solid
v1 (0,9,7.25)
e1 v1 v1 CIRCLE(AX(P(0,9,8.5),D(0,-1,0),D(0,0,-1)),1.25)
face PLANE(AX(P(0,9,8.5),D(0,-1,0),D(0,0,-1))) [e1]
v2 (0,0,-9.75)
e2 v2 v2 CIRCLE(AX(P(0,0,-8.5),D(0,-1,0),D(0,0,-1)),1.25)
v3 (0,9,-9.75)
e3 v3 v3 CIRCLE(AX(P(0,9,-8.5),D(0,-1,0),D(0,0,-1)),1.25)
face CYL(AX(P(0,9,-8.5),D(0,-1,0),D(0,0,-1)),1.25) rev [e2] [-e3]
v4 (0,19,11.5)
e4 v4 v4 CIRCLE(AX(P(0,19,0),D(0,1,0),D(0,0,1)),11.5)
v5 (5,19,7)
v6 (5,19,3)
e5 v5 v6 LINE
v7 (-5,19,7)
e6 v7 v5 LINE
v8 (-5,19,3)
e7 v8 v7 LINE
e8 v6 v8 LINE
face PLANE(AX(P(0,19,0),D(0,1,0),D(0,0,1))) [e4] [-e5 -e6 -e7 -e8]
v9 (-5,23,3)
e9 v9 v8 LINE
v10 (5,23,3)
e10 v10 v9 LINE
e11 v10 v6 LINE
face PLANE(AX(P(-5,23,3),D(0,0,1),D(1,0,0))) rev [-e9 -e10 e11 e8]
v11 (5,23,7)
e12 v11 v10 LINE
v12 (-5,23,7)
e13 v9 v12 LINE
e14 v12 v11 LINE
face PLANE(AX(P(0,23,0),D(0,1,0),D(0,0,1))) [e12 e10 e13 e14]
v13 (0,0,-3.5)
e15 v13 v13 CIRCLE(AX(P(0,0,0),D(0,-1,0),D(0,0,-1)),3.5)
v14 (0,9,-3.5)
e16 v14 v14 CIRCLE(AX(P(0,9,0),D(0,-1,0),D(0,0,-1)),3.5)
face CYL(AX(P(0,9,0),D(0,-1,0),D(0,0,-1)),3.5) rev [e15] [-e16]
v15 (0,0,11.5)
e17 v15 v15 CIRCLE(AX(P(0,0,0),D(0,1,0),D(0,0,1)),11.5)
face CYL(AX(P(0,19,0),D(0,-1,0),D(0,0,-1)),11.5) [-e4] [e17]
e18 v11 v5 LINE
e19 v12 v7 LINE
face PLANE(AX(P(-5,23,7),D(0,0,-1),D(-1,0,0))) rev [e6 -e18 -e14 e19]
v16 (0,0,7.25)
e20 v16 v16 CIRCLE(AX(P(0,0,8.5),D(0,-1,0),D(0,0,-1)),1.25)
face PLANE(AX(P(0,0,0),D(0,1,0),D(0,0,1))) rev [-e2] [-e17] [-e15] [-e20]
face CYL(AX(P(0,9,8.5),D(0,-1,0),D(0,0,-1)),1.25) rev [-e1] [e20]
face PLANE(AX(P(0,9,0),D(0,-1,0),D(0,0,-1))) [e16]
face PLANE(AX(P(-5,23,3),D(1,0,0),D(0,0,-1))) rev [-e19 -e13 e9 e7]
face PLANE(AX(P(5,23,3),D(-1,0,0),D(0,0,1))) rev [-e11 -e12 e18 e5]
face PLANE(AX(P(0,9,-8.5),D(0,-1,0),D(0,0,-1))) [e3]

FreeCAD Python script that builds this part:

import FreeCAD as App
import Part
import Sketcher
from FreeCAD import Vector
Q = App.Units.Quantity


def add_polygon(sketch, points):
    """Adds a closed chain of lines whose ends are joined by coincident constraints."""
    first, n = sketch.GeometryCount, len(points)
    for a, b in zip(points, points[1:] + points[:1]):
        sketch.addGeometry(Part.LineSegment(App.Vector(*a, 0), App.Vector(*b, 0)), False)
    for i in range(n):
        sketch.addConstraint(Sketcher.Constraint("Coincident", first + i, 2, first + (i + 1) % n, 1))

doc = App.newDocument("Part")
body = doc.addObject("PartDesign::Body", "Body")

# Sketch on XZ plane
sketch1 = body.newObject("Sketcher::SketchObject", "Sketch")
sketch1.AttachmentSupport = (doc.getObject("XZ_Plane"), [""])
sketch1.MapMode = "FlatFace"
sketch1.addGeometry(Part.Circle(Vector(0, 0, 0), Vector(0, 0, 1), 11.5), False)
sketch1.addConstraint(Sketcher.Constraint("Coincident", 0, 3, -1, 1))
sketch1.addConstraint(Sketcher.Constraint("Diameter", 0, Q("23 mm")))
pad1 = body.newObject("PartDesign::Pad", "Pad")
pad1.Profile = sketch1
pad1.Length = 19
pad1.Reversed = True

# Sketch on XZ plane
sketch2 = body.newObject("Sketcher::SketchObject", "Sketch001")
sketch2.AttachmentSupport = (doc.getObject("XZ_Plane"), [""])
sketch2.MapMode = "FlatFace"
sketch2.AttachmentOffset = App.Placement(Vector(0, 0, -19), App.Rotation())
add_polygon(sketch2, [(-5, 3), (-5, 7), (5, 7), (5, 3)])  # lines 0-3
sketch2.addConstraint(Sketcher.Constraint("Vertical", 0))
sketch2.addConstraint(Sketcher.Constraint("Horizontal", 1))
sketch2.addConstraint(Sketcher.Constraint("Vertical", 2))
sketch2.addConstraint(Sketcher.Constraint("Horizontal", 3))
sketch2.addConstraint(Sketcher.Constraint("DistanceX", 1, 1, 1, 2, Q("10 mm")))
sketch2.addConstraint(Sketcher.Constraint("DistanceY", 0, 1, 0, 2, Q("4 mm")))
sketch2.addConstraint(Sketcher.Constraint("DistanceX", 0, 2, -1, 1, Q("5 mm")))
sketch2.addConstraint(Sketcher.Constraint("DistanceY", -1, 1, 0, 2, Q("7 mm")))
pad2 = body.newObject("PartDesign::Pad", "Pad001")
pad2.Profile = sketch2
pad2.Length = 4
pad2.Reversed = True

# Sketch on XZ plane
sketch3 = body.newObject("Sketcher::SketchObject", "Sketch002")
sketch3.AttachmentSupport = (doc.getObject("XZ_Plane"), [""])
sketch3.MapMode = "FlatFace"
sketch3.addGeometry(Part.Circle(Vector(0, 0, 0), Vector(0, 0, 1), 3.5), False)
sketch3.addGeometry(Part.Circle(Vector(0, 8.5, 0), Vector(0, 0, 1), 1.25), False)
sketch3.addGeometry(Part.Circle(Vector(0, -8.5, 0), Vector(0, 0, 1), 1.25), False)
sketch3.addConstraint(Sketcher.Constraint("Coincident", 0, 3, -1, 1))
sketch3.addConstraint(Sketcher.Constraint("Equal", 1, 2))
sketch3.addConstraint(Sketcher.Constraint("Symmetric", 1, 3, 2, 3, -1, 1))
sketch3.addConstraint(Sketcher.Constraint("PointOnObject", 1, 3, -2))
sketch3.addConstraint(Sketcher.Constraint("Diameter", 0, Q("7 mm")))
sketch3.addConstraint(Sketcher.Constraint("Diameter", 1, Q("2.5 mm")))
sketch3.addConstraint(Sketcher.Constraint("DistanceY", 2, 3, 1, 3, Q("17 mm")))
pocket1 = body.newObject("PartDesign::Pocket", "Pocket")
pocket1.Profile = sketch3
pocket1.Length = 9

doc.recompute()
